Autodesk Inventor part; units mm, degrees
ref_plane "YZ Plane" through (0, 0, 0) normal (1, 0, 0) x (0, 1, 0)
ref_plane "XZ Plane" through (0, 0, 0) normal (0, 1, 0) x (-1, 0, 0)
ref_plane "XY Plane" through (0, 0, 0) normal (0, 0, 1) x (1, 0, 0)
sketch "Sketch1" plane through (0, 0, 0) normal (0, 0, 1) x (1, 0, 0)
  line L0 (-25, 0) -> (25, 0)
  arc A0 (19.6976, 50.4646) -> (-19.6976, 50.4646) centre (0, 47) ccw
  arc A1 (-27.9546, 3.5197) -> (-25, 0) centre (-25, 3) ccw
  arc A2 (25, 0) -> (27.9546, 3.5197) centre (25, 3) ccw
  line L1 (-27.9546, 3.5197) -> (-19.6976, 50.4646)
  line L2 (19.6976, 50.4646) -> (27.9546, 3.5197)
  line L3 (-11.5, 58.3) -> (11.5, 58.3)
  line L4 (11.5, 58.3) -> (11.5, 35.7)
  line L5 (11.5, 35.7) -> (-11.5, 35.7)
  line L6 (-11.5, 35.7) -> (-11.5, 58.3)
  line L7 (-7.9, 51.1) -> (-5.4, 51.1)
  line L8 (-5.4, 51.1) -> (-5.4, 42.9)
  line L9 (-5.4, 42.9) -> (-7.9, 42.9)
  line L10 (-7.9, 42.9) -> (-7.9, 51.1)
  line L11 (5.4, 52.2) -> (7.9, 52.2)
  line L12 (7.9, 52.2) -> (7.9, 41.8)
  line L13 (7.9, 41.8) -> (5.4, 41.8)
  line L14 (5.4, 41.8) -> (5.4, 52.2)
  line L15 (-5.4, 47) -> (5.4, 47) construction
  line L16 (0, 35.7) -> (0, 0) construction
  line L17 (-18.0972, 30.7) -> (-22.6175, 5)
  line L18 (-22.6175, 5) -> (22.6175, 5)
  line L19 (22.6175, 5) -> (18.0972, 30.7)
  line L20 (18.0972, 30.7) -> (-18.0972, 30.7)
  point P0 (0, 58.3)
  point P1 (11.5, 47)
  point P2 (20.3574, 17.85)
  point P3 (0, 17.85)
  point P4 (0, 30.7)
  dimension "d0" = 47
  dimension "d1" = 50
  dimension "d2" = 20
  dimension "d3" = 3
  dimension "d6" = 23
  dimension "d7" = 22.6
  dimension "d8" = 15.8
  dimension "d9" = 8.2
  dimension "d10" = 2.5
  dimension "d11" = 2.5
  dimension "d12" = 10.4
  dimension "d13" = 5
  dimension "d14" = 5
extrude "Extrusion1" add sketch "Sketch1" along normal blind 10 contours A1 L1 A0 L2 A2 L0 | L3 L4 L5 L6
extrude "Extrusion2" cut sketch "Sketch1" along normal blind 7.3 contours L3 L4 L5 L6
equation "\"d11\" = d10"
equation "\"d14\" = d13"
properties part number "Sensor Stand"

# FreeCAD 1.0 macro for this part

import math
import FreeCAD as App
import Part
import Sketcher
from FreeCAD import Vector


def add_polygon(sketch, points):
    """Adds a closed chain of lines whose ends are joined by coincident constraints."""
    first, n = sketch.GeometryCount, len(points)
    for a, b in zip(points, points[1:] + points[:1]):
        sketch.addGeometry(Part.LineSegment(App.Vector(*a, 0), App.Vector(*b, 0)), False)
    for i in range(n):
        sketch.addConstraint(Sketcher.Constraint("Coincident", first + i, 2, first + (i + 1) % n, 1))

doc = App.newDocument("Part")
params = doc.addObject("Spreadsheet::Sheet", "Params")
for row, (alias, value) in enumerate([
    ("sketch1_radius", "3 mm"),
    ("sketch1_radius2", "20 mm"),
    ("sketch1_width", "50 mm"),
    ("sketch1_width2", "2.5 mm"),
    ("sketch1_height", "10.4 mm"),
    ("pad1_length", "10 mm"),
    ("sketch2_width", "23 mm"),
    ("sketch2_width2", "2.5 mm"),
    ("sketch2_height", "22.6 mm"),
    ("sketch2_height2", "8.2 mm"),
    ("sketch2_height3", "10.4 mm"),
    ("pocket1_length", "7.3 mm"),
], start=1):
    params.set(f"A{row}", alias)
    params.set(f"B{row}", "=" + value)
    params.setAlias(f"B{row}", alias)

body = doc.addObject("PartDesign::Body", "Body")

sketch1 = doc.addObject("Sketcher::SketchObject", "Sketch")
body.addObject(sketch1)
sketch1.AttachmentSupport = (doc.XY_Plane, [""])
sketch1.MapMode = "FlatFace"
sketch1.addGeometry(Part.ArcOfCircle(Part.Circle(Vector(-25, 3, 0), Vector(0, 0, 1), 2.999958), math.radians(170.023994), math.radians(270)), False)
sketch1.addGeometry(Part.LineSegment(Vector(-25, 0, 0), Vector(25, 0, 0)), False)
sketch1.addGeometry(Part.ArcOfCircle(Part.Circle(Vector(25, 3, 0), Vector(0, 0, 1), 3), math.radians(-90), math.radians(9.976006)), False)
sketch1.addGeometry(Part.LineSegment(Vector(27.9546, 3.5197, 0), Vector(19.6976, 50.4646, 0)), False)
sketch1.addGeometry(Part.ArcOfCircle(Part.Circle(Vector(0, 47, 0), Vector(0, 0, 1), 19.999972), math.radians(9.975685), math.radians(170.024315)), False)
sketch1.addGeometry(Part.LineSegment(Vector(-19.6976, 50.4646, 0), Vector(-27.9546, 3.5197, 0)), False)
add_polygon(sketch1, [(-22.6175, 5), (-18.0972, 30.7), (18.0972, 30.7), (22.6175, 5)])
add_polygon(sketch1, [(5.4, 41.8), (5.4, 52.2), (7.9, 52.2), (7.9, 41.8)])
add_polygon(sketch1, [(-7.9, 42.9), (-7.9, 51.1), (-5.4, 51.1), (-5.4, 42.9)])
sketch1.addConstraint([
    Sketcher.Constraint("Tangent", 0, 2, 1, 1),
    Sketcher.Constraint("Tangent", 1, 2, 2, 1),
    Sketcher.Constraint("Tangent", 2, 2, 3, 1),
    Sketcher.Constraint("Tangent", 3, 2, 4, 1),
    Sketcher.Constraint("Tangent", 4, 2, 5, 1),
    Sketcher.Constraint("Tangent", 5, 2, 0, 1),
    Sketcher.Constraint("Horizontal", 1),
    Sketcher.Constraint("Horizontal", 7),
    Sketcher.Constraint("Horizontal", 9),
    Sketcher.Constraint("Vertical", 10),
    Sketcher.Constraint("Horizontal", 11),
    Sketcher.Constraint("Vertical", 12),
    Sketcher.Constraint("Horizontal", 13),
    Sketcher.Constraint("Vertical", 14),
    Sketcher.Constraint("Horizontal", 15),
    Sketcher.Constraint("Vertical", 16),
    Sketcher.Constraint("Horizontal", 17),
    Sketcher.Constraint("Equal", 0, 2),
    Sketcher.Constraint("Symmetric", 0, 2, 1, 2, -1, 1),
    Sketcher.Constraint("PointOnObject", 4, 3, -2),
    Sketcher.Constraint("Parallel", 5, 6),
    Sketcher.Constraint("Parallel", 3, 8),
    Sketcher.Constraint("Equal", 13, 15),
    Sketcher.Constraint("Radius", 0, 3.0),
    Sketcher.Constraint("Radius", 4, 20.0),
    Sketcher.Constraint("DistanceX", 1, 1, 1, 2, 50.0),
    Sketcher.Constraint("DistanceX", 11, 1, 11, 2, 2.5),
    Sketcher.Constraint("DistanceY", 10, 1, 10, 2, 10.4),
    Sketcher.Constraint("DistanceY", 14, 1, 14, 2, 8.2),
    Sketcher.Constraint("DistanceY", -1, 1, 4, 3, 47.0),
    Sketcher.Constraint("DistanceY", -1, 1, 8, 2, 5.0),
    Sketcher.Constraint("DistanceX", 14, 2, 11, 2, 15.8),
    Sketcher.Constraint("DistanceY", -1, 1, 6, 2, 30.7),
    Sketcher.Constraint("DistanceX", -1, 1, 10, 2, 5.4),
    Sketcher.Constraint("DistanceY", -1, 1, 10, 2, 52.2),
    Sketcher.Constraint("DistanceY", -1, 1, 14, 2, 51.1),
    Sketcher.Constraint("DistanceX", 9, 2, 9, 1, 45.235),
    Sketcher.Constraint("DistanceX", 3, 2, 8, 2, 2.92),
])
sketch1.setExpression("Constraints[35]", "Params.sketch1_radius")
sketch1.setExpression("Constraints[36]", "Params.sketch1_radius2")
sketch1.setExpression("Constraints[37]", "Params.sketch1_width")
sketch1.setExpression("Constraints[38]", "Params.sketch1_width2")
sketch1.setExpression("Constraints[39]", "Params.sketch1_height")
pad1 = doc.addObject("PartDesign::Pad", "Pad")
body.addObject(pad1)
pad1.Profile = sketch1
pad1.setExpression("Length", "Params.pad1_length")

sketch2 = doc.addObject("Sketcher::SketchObject", "Sketch001")
body.addObject(sketch2)
sketch2.AttachmentSupport = (doc.XY_Plane, [""])
sketch2.MapMode = "FlatFace"
add_polygon(sketch2, [(11.5, 58.3), (-11.5, 58.3), (-11.5, 35.7), (11.5, 35.7)])
add_polygon(sketch2, [(-7.9, 42.9), (-7.9, 51.1), (-5.4, 51.1), (-5.4, 42.9)])
add_polygon(sketch2, [(5.4, 41.8), (5.4, 52.2), (7.9, 52.2), (7.9, 41.8)])
sketch2.addConstraint([
    Sketcher.Constraint("Horizontal", 0),
    Sketcher.Constraint("Vertical", 1),
    Sketcher.Constraint("Horizontal", 2),
    Sketcher.Constraint("Vertical", 3),
    Sketcher.Constraint("Vertical", 4),
    Sketcher.Constraint("Horizontal", 5),
    Sketcher.Constraint("Vertical", 6),
    Sketcher.Constraint("Horizontal", 7),
    Sketcher.Constraint("Vertical", 8),
    Sketcher.Constraint("Horizontal", 9),
    Sketcher.Constraint("Vertical", 10),
    Sketcher.Constraint("Horizontal", 11),
    Sketcher.Constraint("Equal", 7, 9),
    Sketcher.Constraint("DistanceX", 0, 2, 0, 1, 23.0),
    Sketcher.Constraint("DistanceX", 5, 1, 5, 2, 2.5),
    Sketcher.Constraint("DistanceY", 1, 2, 1, 1, 22.6),
    Sketcher.Constraint("DistanceY", 4, 1, 4, 2, 8.2),
    Sketcher.Constraint("DistanceY", 8, 1, 8, 2, 10.4),
    Sketcher.Constraint("DistanceX", 4, 2, 9, 2, 15.8),
    Sketcher.Constraint("DistanceX", 0, 2, -1, 1, 11.5),
    Sketcher.Constraint("DistanceY", -1, 1, 0, 2, 58.3),
    Sketcher.Constraint("DistanceX", 4, 2, -1, 1, 7.9),
    Sketcher.Constraint("DistanceY", -1, 1, 4, 2, 51.1),
    Sketcher.Constraint("DistanceY", -1, 1, 8, 2, 52.2),
])
sketch2.setExpression("Constraints[25]", "Params.sketch2_width")
sketch2.setExpression("Constraints[26]", "Params.sketch2_width2")
sketch2.setExpression("Constraints[27]", "Params.sketch2_height")
sketch2.setExpression("Constraints[28]", "Params.sketch2_height2")
sketch2.setExpression("Constraints[29]", "Params.sketch2_height3")
pocket1 = doc.addObject("PartDesign::Pocket", "Pocket")
body.addObject(pocket1)
pocket1.Profile = sketch2
pocket1.setExpression("Length", "Params.pocket1_length")
pocket1.Reversed = True

doc.recompute()
